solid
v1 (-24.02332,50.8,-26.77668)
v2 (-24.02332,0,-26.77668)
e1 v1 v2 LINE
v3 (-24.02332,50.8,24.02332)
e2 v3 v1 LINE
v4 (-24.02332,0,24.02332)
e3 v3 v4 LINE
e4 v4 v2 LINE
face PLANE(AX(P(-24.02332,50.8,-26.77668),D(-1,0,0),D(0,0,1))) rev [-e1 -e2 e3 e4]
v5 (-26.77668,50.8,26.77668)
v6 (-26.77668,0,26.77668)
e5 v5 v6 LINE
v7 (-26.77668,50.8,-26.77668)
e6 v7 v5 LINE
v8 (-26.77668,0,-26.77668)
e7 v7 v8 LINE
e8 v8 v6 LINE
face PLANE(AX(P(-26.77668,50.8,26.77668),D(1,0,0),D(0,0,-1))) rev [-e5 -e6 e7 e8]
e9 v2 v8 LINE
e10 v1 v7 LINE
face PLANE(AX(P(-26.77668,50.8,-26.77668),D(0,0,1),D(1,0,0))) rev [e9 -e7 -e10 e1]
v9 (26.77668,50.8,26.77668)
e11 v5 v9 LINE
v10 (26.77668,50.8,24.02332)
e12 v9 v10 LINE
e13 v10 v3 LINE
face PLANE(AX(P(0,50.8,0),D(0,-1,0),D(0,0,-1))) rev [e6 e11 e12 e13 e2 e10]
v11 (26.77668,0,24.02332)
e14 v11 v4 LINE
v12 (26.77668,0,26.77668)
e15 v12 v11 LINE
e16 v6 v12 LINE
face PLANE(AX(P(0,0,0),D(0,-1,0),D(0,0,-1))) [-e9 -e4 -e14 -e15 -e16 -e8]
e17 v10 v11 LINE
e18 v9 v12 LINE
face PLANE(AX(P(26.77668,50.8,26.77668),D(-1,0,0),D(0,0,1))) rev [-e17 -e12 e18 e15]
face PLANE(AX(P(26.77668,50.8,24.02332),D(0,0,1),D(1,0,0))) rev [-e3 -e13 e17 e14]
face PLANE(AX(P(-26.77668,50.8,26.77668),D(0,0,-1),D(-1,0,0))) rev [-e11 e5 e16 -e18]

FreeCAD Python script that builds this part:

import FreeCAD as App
import Part
import Sketcher

V = App.Vector
Q = App.Units.Quantity


def add_polygon(sketch, points):
    """Adds a closed chain of lines whose ends are joined by coincident constraints."""
    first, n = sketch.GeometryCount, len(points)
    for a, b in zip(points, points[1:] + points[:1]):
        sketch.addGeometry(Part.LineSegment(App.Vector(*a, 0), App.Vector(*b, 0)), False)
    for i in range(n):
        sketch.addConstraint(Sketcher.Constraint("Coincident", first + i, 2, first + (i + 1) % n, 1))

doc = App.newDocument("Part")
body = doc.addObject("PartDesign::Body", "Body")

# Sketch on XZ plane
sketch1 = doc.addObject("Sketcher::SketchObject", "Sketch")
body.addObject(sketch1)
sketch1.AttachmentSupport = (doc.XZ_Plane, [""])
sketch1.MapMode = "FlatFace"
add_polygon(sketch1, [(-26.8, 26.8), (26.8, 26.8), (26.8, 24), (-24, 24), (-24, -26.8), (-26.8, -26.8)])  # lines 0-5
sketch1.addConstraint(Sketcher.Constraint("Horizontal", 0))
sketch1.addConstraint(Sketcher.Constraint("Vertical", 1))
sketch1.addConstraint(Sketcher.Constraint("Horizontal", 2))
sketch1.addConstraint(Sketcher.Constraint("Vertical", 3))
sketch1.addConstraint(Sketcher.Constraint("Horizontal", 4))
sketch1.addConstraint(Sketcher.Constraint("Vertical", 5))
sketch1.addConstraint(Sketcher.Constraint("Symmetric", 0, 2, 4, 2, -1, 1))
sketch1.addConstraint(Sketcher.Constraint("Equal", 4, 1))
sketch1.addConstraint(Sketcher.Constraint("Equal", 2, 3))
sketch1.addConstraint(Sketcher.Constraint("DistanceX", 2, 2, 2, 1, Q("2 in")))
sketch1.addConstraint(Sketcher.Constraint("DistanceX", 0, 1, 0, 2, Q("2.1084 in")))
pad1 = doc.addObject("PartDesign::Pad", "Pad")
body.addObject(pad1)
pad1.Profile = sketch1
pad1.Length = Q("2 in")
pad1.Reversed = True

doc.recompute()
